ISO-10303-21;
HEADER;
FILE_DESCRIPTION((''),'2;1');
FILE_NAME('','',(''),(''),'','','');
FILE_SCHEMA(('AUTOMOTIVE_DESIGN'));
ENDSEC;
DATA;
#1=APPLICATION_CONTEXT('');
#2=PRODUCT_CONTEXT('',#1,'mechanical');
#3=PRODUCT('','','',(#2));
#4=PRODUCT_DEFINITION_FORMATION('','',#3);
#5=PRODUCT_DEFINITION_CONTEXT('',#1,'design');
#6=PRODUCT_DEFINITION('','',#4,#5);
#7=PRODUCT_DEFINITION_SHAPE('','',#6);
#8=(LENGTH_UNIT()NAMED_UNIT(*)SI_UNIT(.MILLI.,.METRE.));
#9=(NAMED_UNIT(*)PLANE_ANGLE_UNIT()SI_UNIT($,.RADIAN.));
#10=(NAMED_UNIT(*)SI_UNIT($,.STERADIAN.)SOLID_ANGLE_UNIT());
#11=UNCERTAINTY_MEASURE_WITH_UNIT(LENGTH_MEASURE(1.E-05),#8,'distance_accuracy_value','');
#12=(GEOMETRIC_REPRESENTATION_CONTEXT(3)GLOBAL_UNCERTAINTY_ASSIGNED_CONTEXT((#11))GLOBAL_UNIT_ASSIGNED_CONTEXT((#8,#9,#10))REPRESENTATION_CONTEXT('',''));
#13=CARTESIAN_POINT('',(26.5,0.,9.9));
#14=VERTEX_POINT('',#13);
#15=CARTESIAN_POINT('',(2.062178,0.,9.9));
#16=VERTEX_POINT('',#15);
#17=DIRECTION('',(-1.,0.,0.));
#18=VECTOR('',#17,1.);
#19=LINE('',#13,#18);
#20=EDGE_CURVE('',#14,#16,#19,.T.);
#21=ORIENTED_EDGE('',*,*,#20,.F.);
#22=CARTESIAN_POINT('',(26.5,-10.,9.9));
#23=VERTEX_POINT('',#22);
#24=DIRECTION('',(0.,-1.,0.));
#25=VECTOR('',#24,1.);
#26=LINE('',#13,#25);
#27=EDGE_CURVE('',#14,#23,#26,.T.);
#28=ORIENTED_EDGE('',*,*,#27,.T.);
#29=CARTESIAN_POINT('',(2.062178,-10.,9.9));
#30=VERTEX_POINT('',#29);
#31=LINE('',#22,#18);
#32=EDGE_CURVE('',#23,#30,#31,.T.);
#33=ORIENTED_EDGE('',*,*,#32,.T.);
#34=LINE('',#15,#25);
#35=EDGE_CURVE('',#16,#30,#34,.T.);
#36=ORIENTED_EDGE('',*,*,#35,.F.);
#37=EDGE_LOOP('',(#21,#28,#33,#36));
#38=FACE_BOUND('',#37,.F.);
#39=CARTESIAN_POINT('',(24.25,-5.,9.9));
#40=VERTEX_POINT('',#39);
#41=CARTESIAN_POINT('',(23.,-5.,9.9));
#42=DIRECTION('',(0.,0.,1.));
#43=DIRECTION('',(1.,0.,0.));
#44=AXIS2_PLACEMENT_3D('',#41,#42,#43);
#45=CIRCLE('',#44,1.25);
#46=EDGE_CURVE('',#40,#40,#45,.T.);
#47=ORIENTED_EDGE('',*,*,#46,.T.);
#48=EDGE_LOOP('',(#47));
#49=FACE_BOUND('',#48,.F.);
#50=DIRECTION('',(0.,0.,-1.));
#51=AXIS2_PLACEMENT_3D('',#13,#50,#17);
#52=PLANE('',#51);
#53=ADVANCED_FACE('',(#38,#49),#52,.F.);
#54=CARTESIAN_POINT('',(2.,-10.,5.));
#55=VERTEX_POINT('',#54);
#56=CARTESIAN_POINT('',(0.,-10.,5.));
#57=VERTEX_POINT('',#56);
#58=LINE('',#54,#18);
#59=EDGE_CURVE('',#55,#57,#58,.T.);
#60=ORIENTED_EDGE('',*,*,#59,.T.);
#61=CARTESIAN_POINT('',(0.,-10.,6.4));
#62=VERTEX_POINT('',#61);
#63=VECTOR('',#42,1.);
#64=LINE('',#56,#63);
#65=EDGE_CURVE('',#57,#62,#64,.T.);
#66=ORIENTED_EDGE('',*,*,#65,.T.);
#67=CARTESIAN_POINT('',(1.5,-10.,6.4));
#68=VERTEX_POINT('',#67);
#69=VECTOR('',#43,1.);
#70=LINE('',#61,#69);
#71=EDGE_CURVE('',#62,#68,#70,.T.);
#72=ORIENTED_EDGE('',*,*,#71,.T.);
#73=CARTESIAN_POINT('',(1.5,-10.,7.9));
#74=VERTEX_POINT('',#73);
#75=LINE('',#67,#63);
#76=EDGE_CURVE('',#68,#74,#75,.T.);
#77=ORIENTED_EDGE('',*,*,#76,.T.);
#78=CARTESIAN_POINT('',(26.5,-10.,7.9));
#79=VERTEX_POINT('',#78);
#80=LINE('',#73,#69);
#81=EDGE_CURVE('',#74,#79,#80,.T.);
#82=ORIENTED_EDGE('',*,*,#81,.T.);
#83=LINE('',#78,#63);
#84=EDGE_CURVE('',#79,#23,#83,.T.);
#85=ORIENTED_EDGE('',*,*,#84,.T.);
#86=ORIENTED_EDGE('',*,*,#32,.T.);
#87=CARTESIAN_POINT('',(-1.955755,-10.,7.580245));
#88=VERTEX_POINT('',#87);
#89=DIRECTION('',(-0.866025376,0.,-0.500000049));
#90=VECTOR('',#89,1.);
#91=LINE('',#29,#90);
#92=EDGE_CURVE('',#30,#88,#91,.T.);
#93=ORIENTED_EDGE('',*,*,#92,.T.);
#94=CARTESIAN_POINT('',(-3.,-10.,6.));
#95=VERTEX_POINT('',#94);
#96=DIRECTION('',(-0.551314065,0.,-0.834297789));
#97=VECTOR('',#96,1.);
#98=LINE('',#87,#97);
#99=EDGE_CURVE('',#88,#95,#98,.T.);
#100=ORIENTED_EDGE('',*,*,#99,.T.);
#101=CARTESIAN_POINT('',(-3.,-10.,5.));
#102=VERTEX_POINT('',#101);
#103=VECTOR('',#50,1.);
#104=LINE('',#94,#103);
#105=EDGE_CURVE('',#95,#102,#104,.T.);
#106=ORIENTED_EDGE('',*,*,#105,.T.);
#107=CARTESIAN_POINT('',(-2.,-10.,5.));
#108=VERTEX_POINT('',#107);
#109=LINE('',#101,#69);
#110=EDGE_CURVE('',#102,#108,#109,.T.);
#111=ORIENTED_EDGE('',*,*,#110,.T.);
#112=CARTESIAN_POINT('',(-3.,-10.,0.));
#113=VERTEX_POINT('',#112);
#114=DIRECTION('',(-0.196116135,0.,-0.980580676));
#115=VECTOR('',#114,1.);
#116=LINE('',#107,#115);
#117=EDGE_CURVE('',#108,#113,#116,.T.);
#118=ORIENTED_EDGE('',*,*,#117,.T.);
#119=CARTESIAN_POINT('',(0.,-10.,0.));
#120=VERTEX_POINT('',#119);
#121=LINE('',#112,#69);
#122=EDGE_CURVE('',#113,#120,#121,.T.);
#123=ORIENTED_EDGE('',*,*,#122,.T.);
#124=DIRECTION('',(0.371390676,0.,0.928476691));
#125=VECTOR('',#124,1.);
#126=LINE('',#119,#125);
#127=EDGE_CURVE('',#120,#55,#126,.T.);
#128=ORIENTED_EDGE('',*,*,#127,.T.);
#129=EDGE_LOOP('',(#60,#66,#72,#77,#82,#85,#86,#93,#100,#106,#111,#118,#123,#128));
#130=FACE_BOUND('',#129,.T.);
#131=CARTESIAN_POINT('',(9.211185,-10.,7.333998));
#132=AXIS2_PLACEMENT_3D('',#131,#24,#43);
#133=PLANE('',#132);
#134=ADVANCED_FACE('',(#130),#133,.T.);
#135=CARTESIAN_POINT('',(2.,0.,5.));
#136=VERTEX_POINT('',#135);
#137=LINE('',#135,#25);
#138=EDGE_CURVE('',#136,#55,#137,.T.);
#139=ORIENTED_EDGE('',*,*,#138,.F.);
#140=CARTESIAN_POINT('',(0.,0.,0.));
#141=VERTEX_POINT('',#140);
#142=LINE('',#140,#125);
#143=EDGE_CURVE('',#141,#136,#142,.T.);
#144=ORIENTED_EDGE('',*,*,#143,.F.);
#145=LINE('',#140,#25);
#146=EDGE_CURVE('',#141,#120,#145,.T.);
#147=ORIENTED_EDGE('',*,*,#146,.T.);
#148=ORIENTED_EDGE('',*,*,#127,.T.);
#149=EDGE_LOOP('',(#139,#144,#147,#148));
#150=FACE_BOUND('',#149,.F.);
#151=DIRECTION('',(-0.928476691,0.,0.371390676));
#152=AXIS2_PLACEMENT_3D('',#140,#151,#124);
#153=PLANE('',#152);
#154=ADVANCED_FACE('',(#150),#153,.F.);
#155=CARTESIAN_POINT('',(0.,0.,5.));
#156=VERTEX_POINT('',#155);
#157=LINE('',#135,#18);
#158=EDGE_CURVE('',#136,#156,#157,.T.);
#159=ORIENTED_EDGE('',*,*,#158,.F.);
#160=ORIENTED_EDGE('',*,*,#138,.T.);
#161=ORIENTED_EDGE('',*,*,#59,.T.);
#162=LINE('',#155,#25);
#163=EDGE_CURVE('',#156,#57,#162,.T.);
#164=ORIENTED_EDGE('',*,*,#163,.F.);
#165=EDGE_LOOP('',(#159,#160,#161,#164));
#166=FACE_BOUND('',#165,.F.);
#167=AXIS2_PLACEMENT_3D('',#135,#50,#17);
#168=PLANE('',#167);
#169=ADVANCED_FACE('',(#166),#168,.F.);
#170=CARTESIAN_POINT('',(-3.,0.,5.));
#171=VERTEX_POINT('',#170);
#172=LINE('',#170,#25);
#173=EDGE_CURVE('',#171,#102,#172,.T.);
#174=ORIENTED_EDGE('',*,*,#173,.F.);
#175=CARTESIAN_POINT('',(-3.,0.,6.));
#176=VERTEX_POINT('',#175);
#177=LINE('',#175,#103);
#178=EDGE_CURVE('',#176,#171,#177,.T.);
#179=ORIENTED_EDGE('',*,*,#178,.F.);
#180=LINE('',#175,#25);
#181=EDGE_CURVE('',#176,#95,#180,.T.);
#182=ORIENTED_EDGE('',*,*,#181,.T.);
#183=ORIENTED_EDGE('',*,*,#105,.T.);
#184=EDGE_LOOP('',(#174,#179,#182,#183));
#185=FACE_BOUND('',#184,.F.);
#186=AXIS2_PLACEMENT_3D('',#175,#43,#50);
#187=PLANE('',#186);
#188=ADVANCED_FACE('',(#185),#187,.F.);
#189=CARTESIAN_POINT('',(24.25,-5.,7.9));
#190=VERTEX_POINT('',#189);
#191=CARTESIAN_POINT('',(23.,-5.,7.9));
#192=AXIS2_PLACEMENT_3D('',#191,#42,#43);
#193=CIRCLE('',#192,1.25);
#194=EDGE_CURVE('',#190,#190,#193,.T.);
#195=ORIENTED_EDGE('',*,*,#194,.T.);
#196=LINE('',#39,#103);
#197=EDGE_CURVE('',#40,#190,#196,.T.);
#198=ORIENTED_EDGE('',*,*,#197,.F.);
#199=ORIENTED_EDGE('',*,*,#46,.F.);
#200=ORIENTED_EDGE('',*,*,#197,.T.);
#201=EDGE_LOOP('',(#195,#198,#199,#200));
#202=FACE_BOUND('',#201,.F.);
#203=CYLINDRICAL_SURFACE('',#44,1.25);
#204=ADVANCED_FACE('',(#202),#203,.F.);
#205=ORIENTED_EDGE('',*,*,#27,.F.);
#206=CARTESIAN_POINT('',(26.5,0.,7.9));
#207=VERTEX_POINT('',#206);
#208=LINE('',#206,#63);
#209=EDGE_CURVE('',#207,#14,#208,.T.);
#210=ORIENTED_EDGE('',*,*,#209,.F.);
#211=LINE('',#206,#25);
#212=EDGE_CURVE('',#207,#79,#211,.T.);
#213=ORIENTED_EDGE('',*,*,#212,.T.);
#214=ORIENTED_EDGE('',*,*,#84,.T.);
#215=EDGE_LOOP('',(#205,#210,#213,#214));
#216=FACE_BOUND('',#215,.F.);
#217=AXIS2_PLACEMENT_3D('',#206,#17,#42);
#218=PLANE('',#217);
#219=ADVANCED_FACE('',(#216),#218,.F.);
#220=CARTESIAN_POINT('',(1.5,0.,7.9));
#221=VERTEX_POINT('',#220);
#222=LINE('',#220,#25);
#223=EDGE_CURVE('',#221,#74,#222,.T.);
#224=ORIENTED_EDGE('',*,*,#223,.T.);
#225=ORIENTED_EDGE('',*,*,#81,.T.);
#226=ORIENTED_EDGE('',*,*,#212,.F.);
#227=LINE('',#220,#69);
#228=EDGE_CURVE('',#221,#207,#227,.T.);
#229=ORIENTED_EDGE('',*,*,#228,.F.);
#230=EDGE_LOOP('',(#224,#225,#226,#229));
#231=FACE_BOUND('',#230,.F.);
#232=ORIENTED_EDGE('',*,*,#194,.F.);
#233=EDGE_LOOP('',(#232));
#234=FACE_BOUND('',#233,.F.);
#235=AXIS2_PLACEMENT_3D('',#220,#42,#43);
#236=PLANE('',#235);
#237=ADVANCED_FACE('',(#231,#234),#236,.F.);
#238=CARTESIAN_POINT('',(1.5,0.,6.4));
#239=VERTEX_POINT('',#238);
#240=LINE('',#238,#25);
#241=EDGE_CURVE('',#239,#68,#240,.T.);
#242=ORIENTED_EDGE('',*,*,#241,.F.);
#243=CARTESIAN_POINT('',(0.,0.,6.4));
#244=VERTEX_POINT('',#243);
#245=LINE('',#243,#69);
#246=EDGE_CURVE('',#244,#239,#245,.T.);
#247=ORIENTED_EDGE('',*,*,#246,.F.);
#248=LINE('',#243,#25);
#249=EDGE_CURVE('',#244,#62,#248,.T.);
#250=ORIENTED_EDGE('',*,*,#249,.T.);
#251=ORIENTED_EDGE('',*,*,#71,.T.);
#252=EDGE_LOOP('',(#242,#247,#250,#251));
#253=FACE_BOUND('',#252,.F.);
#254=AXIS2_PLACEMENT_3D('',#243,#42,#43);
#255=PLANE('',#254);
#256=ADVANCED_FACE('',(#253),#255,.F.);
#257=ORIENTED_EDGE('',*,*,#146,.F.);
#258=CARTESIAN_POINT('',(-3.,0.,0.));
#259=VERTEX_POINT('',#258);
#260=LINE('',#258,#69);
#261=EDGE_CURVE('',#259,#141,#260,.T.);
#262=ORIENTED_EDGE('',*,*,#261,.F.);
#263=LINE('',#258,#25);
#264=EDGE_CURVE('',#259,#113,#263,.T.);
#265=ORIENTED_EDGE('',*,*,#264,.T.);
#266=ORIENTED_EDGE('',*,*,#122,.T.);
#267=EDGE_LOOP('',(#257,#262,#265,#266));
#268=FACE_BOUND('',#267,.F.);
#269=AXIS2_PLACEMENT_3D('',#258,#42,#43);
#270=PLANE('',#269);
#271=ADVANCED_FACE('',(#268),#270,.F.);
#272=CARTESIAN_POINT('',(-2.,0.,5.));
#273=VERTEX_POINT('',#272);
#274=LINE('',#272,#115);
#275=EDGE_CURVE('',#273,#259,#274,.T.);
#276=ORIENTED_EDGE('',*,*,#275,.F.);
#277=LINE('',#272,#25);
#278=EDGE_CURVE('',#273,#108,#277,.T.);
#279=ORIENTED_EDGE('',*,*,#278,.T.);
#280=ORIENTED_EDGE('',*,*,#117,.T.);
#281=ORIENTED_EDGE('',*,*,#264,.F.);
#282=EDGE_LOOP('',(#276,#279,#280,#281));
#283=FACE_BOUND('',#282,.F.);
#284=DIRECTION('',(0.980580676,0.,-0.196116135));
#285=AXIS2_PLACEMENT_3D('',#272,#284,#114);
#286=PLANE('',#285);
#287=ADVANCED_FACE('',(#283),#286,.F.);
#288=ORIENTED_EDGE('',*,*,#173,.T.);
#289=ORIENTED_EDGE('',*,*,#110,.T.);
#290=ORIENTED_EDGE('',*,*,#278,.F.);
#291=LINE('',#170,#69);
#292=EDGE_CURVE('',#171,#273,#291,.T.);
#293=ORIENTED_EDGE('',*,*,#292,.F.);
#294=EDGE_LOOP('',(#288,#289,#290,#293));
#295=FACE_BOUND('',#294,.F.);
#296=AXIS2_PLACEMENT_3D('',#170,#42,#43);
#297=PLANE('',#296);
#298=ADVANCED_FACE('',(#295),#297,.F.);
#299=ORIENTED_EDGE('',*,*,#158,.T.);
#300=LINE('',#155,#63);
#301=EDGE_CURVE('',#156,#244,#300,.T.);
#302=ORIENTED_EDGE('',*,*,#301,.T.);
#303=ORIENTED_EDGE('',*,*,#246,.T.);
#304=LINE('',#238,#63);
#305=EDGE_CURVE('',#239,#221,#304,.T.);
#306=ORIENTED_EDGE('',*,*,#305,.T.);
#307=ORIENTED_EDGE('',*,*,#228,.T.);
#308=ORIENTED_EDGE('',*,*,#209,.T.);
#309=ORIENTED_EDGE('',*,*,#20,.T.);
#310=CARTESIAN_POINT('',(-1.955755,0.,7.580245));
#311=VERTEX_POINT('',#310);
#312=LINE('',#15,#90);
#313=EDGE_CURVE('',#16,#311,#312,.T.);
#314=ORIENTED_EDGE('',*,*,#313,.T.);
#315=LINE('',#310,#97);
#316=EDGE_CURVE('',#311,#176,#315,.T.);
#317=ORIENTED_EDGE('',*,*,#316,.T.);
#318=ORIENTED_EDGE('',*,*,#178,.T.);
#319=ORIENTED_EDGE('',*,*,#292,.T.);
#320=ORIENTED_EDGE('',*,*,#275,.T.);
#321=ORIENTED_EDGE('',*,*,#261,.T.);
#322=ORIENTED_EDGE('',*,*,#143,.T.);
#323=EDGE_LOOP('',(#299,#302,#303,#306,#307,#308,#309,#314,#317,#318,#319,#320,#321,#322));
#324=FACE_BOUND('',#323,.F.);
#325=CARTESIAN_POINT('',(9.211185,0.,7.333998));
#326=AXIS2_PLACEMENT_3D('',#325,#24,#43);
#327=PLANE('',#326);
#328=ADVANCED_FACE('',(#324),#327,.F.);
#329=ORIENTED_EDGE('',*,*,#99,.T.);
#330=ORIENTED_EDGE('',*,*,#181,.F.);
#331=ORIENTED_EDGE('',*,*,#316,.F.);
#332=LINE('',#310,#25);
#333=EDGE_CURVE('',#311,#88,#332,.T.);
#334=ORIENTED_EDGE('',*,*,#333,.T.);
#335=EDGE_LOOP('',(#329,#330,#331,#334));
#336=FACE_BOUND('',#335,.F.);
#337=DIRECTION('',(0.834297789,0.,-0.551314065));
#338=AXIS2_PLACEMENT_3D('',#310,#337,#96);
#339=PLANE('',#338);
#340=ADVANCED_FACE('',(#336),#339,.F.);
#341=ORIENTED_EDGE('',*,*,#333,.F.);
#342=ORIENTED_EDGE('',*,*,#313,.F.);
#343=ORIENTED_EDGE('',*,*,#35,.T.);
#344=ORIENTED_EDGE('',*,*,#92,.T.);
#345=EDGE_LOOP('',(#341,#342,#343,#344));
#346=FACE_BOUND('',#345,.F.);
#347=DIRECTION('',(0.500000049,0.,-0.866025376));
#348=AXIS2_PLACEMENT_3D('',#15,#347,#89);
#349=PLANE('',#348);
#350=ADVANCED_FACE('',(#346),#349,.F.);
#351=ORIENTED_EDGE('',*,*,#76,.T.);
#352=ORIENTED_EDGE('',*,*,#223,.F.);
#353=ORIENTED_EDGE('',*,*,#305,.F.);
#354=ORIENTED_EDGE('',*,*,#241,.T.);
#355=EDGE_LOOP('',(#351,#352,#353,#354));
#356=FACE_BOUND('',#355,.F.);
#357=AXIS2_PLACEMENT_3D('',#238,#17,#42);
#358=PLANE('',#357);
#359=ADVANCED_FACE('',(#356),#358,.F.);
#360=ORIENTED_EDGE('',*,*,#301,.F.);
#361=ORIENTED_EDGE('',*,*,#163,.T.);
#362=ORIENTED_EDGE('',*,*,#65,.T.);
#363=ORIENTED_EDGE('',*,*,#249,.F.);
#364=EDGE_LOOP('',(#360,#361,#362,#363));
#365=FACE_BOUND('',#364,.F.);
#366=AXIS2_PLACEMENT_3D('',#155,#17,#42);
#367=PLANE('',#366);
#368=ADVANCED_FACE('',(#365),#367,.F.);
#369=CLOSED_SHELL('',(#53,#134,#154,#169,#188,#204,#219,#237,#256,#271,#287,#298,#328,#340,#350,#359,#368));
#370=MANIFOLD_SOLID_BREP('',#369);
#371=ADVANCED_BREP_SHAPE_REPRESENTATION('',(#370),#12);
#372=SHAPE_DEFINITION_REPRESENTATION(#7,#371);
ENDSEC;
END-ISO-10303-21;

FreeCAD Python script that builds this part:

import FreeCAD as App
import Part
import Sketcher

V = App.Vector
Q = App.Units.Quantity

doc = App.newDocument("Part")
body = doc.addObject("PartDesign::Body", "Body")

# Sketch on XZ plane
sketch1 = body.newObject("Sketcher::SketchObject", "Sketch")
sketch1.AttachmentSupport = (doc.getObject("XZ_Plane"), [""])
sketch1.MapMode = "FlatFace"
sketch1.addGeometry([
    Part.LineSegment(V(-3, 0, 0), V(0, 0, 0)),  # 0
    Part.LineSegment(V(0, 0, 0), V(2, 5, 0)),  # 1
    Part.LineSegment(V(2, 5, 0), V(0, 5, 0)),  # 2
    Part.LineSegment(V(0, 5, 0), V(0, 6.4, 0)),  # 3
    Part.LineSegment(V(0, 6.4, 0), V(1.5, 6.4, 0)),  # 4
    Part.LineSegment(V(1.5, 6.4, 0), V(1.5, 7.9, 0)),  # 5
    Part.LineSegment(V(1.5, 7.9, 0), V(26.5, 7.9, 0)),  # 6
    Part.LineSegment(V(26.5, 7.9, 0), V(26.5, 9.9, 0)),  # 7
    Part.LineSegment(V(26.5, 9.9, 0), V(2.1, 9.9, 0)),  # 8
    Part.LineSegment(V(2.1, 9.9, 0), V(-2, 7.6, 0)),  # 9
    Part.LineSegment(V(-2, 7.6, 0), V(-3, 6, 0)),  # 10
    Part.LineSegment(V(-3, 6, 0), V(-3, 5, 0)),  # 11
    Part.LineSegment(V(-3, 5, 0), V(-2, 5, 0)),  # 12
    Part.LineSegment(V(-2, 5, 0), V(-3, 0, 0)),  # 13
], False)
sketch1.addConstraint([
    Sketcher.Constraint("Coincident", 0, 2, 1, 1),
    Sketcher.Constraint("Coincident", 1, 2, 2, 1),
    Sketcher.Constraint("Coincident", 2, 2, 3, 1),
    Sketcher.Constraint("Coincident", 3, 2, 4, 1),
    Sketcher.Constraint("Coincident", 4, 2, 5, 1),
    Sketcher.Constraint("Coincident", 5, 2, 6, 1),
    Sketcher.Constraint("Coincident", 6, 2, 7, 1),
    Sketcher.Constraint("Coincident", 7, 2, 8, 1),
    Sketcher.Constraint("Coincident", 8, 2, 9, 1),
    Sketcher.Constraint("Coincident", 9, 2, 10, 1),
    Sketcher.Constraint("Coincident", 10, 2, 11, 1),
    Sketcher.Constraint("Coincident", 11, 2, 12, 1),
    Sketcher.Constraint("Coincident", 12, 2, 13, 1),
    Sketcher.Constraint("Coincident", 13, 2, 0, 1),
    Sketcher.Constraint("Horizontal", 0),
    Sketcher.Constraint("Horizontal", 2),
    Sketcher.Constraint("Vertical", 3),
    Sketcher.Constraint("Horizontal", 4),
    Sketcher.Constraint("Vertical", 5),
    Sketcher.Constraint("Horizontal", 6),
    Sketcher.Constraint("Vertical", 7),
    Sketcher.Constraint("Horizontal", 8),
    Sketcher.Constraint("Vertical", 11),
    Sketcher.Constraint("Horizontal", 12),
    Sketcher.Constraint("Coincident", 0, 2, -1, 1),
    Sketcher.Constraint("Symmetric", 1, 2, 12, 2, -2),
    Sketcher.Constraint("PointOnObject", 2, 2, -2),
    Sketcher.Constraint("Vertical", 11, 2, 13, 2),
    Sketcher.Constraint("Equal", 4, 5),
    Sketcher.Constraint("Equal", 2, 7),
    Sketcher.Constraint("Equal", 12, 11),
    Sketcher.Constraint("DistanceX", 0, 1, 0, 2, 3.0),
    Sketcher.Constraint("DistanceX", 2, 2, 2, 1, 2.0),
    Sketcher.Constraint("DistanceX", 6, 1, 6, 2, 25.0),
    Sketcher.Constraint("Angle", 9, Q("-149.999997 deg")),
    Sketcher.Constraint("DistanceX", 4, 1, 4, 2, 1.5),
    Sketcher.Constraint("DistanceY", 3, 1, 3, 2, 1.4),
    Sketcher.Constraint("DistanceY", -1, 1, 1, 2, 5.0),
    Sketcher.Constraint("Distance", 10, 1.894102),
    Sketcher.Constraint("Distance", 9, 4.63951),
])
pad1 = body.newObject("PartDesign::Pad", "Pad")
pad1.Profile = sketch1
pad1.Length = 10

# Sketch on XY plane
sketch2 = body.newObject("Sketcher::SketchObject", "Sketch001")
sketch2.AttachmentSupport = (doc.getObject("XY_Plane"), [""])
sketch2.MapMode = "FlatFace"
sketch2.AttachmentOffset = App.Placement(V(0, 0, 9.9), App.Rotation())
sketch2.addGeometry(Part.Circle(V(23, -5, 0), V(0, 0, 1), 1.2), False)
sketch2.addConstraint([
    Sketcher.Constraint("Diameter", 0, 2.5),
    Sketcher.Constraint("DistanceX", -1, 1, 0, 3, 23.0),
    Sketcher.Constraint("DistanceY", 0, 3, -1, 1, 5.0),
])
pocket1 = body.newObject("PartDesign::Pocket", "Pocket")
pocket1.Profile = sketch2
pocket1.Length = 25

doc.recompute()
